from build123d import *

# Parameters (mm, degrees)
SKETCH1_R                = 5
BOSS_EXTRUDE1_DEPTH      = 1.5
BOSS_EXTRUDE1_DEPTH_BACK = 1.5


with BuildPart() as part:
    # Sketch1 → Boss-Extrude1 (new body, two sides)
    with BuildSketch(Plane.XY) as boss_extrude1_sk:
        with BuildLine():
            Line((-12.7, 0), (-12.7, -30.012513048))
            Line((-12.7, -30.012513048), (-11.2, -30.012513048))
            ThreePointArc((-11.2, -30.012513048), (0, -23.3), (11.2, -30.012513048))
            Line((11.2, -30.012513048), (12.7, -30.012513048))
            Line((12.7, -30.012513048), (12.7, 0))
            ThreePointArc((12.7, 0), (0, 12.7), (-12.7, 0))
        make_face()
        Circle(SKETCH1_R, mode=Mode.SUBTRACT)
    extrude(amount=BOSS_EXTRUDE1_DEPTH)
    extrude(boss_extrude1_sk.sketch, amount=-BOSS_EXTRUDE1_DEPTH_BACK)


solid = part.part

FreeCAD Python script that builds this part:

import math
import FreeCAD as App
import Part
import Sketcher
from FreeCAD import Vector

doc = App.newDocument("Part")
body = doc.addObject("PartDesign::Body", "Body")

# Sketch on XY plane
sketch1 = body.newObject("Sketcher::SketchObject", "Sketch")
sketch1.AttachmentSupport = (doc.getObject("XY_Plane"), [""])
sketch1.MapMode = "FlatFace"
sketch1.addGeometry([
    Part.LineSegment(Vector(-12.7, 0, 0), Vector(-12.7, -30, 0)),  # 0
    Part.LineSegment(Vector(-12.7, -30, 0), Vector(-11.2, -30, 0)),  # 1
    Part.ArcOfCircle(Part.Circle(Vector(0, -36, 0), Vector(0, 0, 1), 12.7), math.radians(28), math.radians(152)),  # 2
    Part.LineSegment(Vector(11.2, -30, 0), Vector(12.7, -30, 0)),  # 3
    Part.LineSegment(Vector(12.7, -30, 0), Vector(12.7, 0, 0)),  # 4
    Part.ArcOfCircle(Part.Circle(Vector(0, 0, 0), Vector(0, 0, 1), 12.7), math.radians(0), math.radians(180)),  # 5
    Part.Circle(Vector(0, 0, 0), Vector(0, 0, 1), 5),  # 6
], False)
sketch1.addConstraint([
    Sketcher.Constraint("Coincident", 0, 2, 1, 1),
    Sketcher.Constraint("Coincident", 1, 2, 2, 2),
    Sketcher.Constraint("Coincident", 2, 1, 3, 1),
    Sketcher.Constraint("Coincident", 3, 2, 4, 1),
    Sketcher.Constraint("Tangent", 4, 2, 5, 1),
    Sketcher.Constraint("Tangent", 5, 2, 0, 1),
    Sketcher.Constraint("Vertical", 0),
    Sketcher.Constraint("Horizontal", 1),
    Sketcher.Constraint("Horizontal", 3),
    Sketcher.Constraint("Vertical", 4),
    Sketcher.Constraint("Coincident", 5, 3, -1, 1),
    Sketcher.Constraint("Coincident", 6, 3, -1, 1),
    Sketcher.Constraint("Equal", 2, 5),
    Sketcher.Constraint("Symmetric", 1, 2, 2, 1, -2),
    Sketcher.Constraint("Diameter", 6, 10.0),
    Sketcher.Constraint("Radius", 2, 12.7),
    Sketcher.Constraint("DistanceX", 1, 1, 1, 2, 1.5),
    Sketcher.Constraint("DistanceY", 2, 3, -1, 1, 36.0),
])
pad1 = body.newObject("PartDesign::Pad", "Pad")
pad1.Profile = sketch1
pad1.Type = "TwoLengths"
pad1.Length = 1.5
pad1.Length2 = 1.5

doc.recompute()
